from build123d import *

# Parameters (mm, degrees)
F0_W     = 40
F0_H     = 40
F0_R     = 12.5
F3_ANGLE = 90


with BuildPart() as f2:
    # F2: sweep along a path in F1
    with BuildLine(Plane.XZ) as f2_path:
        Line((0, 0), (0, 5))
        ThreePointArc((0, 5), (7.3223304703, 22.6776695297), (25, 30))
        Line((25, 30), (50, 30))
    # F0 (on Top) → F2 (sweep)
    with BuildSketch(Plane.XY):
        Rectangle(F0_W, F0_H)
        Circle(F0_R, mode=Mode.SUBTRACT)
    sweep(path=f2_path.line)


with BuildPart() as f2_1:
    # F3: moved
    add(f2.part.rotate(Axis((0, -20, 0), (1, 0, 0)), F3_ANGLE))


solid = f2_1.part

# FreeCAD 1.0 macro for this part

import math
import FreeCAD as App
import Part
import Sketcher


def add_polygon(sketch, points):
    """Adds a closed chain of lines whose ends are joined by coincident constraints."""
    first, n = sketch.GeometryCount, len(points)
    for a, b in zip(points, points[1:] + points[:1]):
        sketch.addGeometry(Part.LineSegment(App.Vector(*a, 0), App.Vector(*b, 0)), False)
    for i in range(n):
        sketch.addConstraint(Sketcher.Constraint("Coincident", first + i, 2, first + (i + 1) % n, 1))

doc = App.newDocument("Part")
params = doc.addObject("Spreadsheet::Sheet", "Params")
for row, (alias, value) in enumerate([
    ("sketch1_diameter", "25 mm"),
    ("sketch1_width", "40 mm"),
    ("sketch2_radius", "25 mm"),
    ("sketch2_width", "25 mm"),
    ("sketch2_height", "5 mm"),
], start=1):
    params.set(f"A{row}", alias)
    params.set(f"B{row}", "=" + value)
    params.setAlias(f"B{row}", alias)

body = doc.addObject("PartDesign::Body", "Body")

sketch1 = body.newObject("Sketcher::SketchObject", "Sketch")
sketch1.AttachmentSupport = (doc.getObject("XY_Plane"), [""])
sketch1.MapMode = "FlatFace"
add_polygon(sketch1, [(-20, 20), (-20, -20), (20, -20), (20, 20)])
sketch1.addGeometry(Part.Circle(App.Vector(0, 0, 0), App.Vector(0, 0, 1), 12), False)
sketch1.addConstraint(Sketcher.Constraint("Vertical", 0))
sketch1.addConstraint(Sketcher.Constraint("Horizontal", 1))
sketch1.addConstraint(Sketcher.Constraint("Vertical", 2))
sketch1.addConstraint(Sketcher.Constraint("Horizontal", 3))
sketch1.addConstraint(Sketcher.Constraint("Coincident", 4, 3, -1, 1))
sketch1.addConstraint(Sketcher.Constraint("Symmetric", 0, 2, 2, 2, -1, 1))
sketch1.addConstraint(Sketcher.Constraint("Equal", 3, 0))
sketch1.addConstraint(Sketcher.Constraint("Diameter", 4, 25.0))
sketch1.addConstraint(Sketcher.Constraint("DistanceX", 1, 1, 1, 2, 40.0))
sketch1.setExpression("Constraints[11]", "Params.sketch1_diameter")
sketch1.setExpression("Constraints[12]", "Params.sketch1_width")

sketch2 = body.newObject("Sketcher::SketchObject", "Sketch001")
sketch2.AttachmentSupport = (doc.getObject("XZ_Plane"), [""])
sketch2.MapMode = "FlatFace"
sketch2.addGeometry(Part.LineSegment(App.Vector(0, 0, 0), App.Vector(0, 5, 0)), False)
sketch2.addGeometry(Part.ArcOfCircle(Part.Circle(App.Vector(25, 5, 0), App.Vector(0, 0, 1), 25), math.radians(90), math.radians(180)), False)
sketch2.addGeometry(Part.LineSegment(App.Vector(25, 30, 0), App.Vector(50, 30, 0)), False)
sketch2.addConstraint(Sketcher.Constraint("Tangent", 0, 2, 1, 2))
sketch2.addConstraint(Sketcher.Constraint("Tangent", 1, 1, 2, 1))
sketch2.addConstraint(Sketcher.Constraint("Vertical", 0))
sketch2.addConstraint(Sketcher.Constraint("Horizontal", 2))
sketch2.addConstraint(Sketcher.Constraint("Coincident", 0, 1, -1, 1))
sketch2.addConstraint(Sketcher.Constraint("Radius", 1, 25.0))
sketch2.addConstraint(Sketcher.Constraint("DistanceX", 2, 1, 2, 2, 25.0))
sketch2.addConstraint(Sketcher.Constraint("DistanceY", 0, 1, 0, 2, 5.0))
sketch2.setExpression("Constraints[5]", "Params.sketch2_radius")
sketch2.setExpression("Constraints[6]", "Params.sketch2_width")
sketch2.setExpression("Constraints[7]", "Params.sketch2_height")
doc.recompute()

additivepipe = body.newObject("PartDesign::AdditivePipe", "AdditivePipe")
additivepipe.Profile = sketch1
additivepipe.Spine = (sketch2, ["Edge1", "Edge2", "Edge3"])
body2 = doc.addObject("PartDesign::Body", "Body001")
doc.recompute()

body.Placement = App.Placement(App.Vector(0, -20, 20), App.Rotation(App.Vector(1, 0, 0), 90))
boolean = body2.newObject("PartDesign::Boolean", "Boolean")
boolean.Type = "Fuse"
boolean.addObjects([body])

doc.recompute()
